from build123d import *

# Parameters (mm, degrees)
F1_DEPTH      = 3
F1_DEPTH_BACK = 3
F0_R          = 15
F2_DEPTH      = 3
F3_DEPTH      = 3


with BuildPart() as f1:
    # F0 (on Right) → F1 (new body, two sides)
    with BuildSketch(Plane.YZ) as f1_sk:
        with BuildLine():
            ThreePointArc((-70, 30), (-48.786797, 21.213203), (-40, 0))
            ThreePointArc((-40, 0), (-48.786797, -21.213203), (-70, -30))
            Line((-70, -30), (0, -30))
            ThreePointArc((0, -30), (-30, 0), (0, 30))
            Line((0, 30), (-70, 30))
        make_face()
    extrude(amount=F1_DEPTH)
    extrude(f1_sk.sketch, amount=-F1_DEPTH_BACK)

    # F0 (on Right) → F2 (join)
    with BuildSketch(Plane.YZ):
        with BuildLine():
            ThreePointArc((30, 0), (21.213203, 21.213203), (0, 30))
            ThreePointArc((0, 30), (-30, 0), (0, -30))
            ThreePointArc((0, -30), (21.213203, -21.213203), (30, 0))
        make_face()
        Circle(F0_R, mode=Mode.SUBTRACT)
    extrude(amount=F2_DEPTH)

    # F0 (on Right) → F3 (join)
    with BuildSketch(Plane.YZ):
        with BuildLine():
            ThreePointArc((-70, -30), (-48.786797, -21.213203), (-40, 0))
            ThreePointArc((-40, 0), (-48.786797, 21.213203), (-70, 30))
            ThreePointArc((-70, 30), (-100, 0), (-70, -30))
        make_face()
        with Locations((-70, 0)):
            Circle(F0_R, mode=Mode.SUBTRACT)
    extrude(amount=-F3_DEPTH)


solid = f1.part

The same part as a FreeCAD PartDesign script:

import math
import FreeCAD as App
import Part
import Sketcher
from FreeCAD import Vector
Q = App.Units.Quantity

doc = App.newDocument("Part")
params = doc.addObject("Spreadsheet::Sheet", "Params")
for row, (alias, value) in enumerate([
    ("sketch1_radius", "30.000001 mm"),
    ("sketch1_width", "70 mm"),
    ("pad1_length", "3 mm"),
    ("pad1_length2", "3 mm"),
    ("sketch2_diameter", "30 mm"),
    ("sketch2_radius", "30.000001 mm"),
    ("pad2_length", "3 mm"),
    ("sketch3_diameter", "30 mm"),
    ("sketch3_radius", "30.000001 mm"),
    ("pad3_length", "3 mm"),
], start=1):
    params.set(f"A{row}", alias)
    params.set(f"B{row}", "=" + value)
    params.setAlias(f"B{row}", alias)

body = doc.addObject("PartDesign::Body", "Body")

# Sketch on YZ plane
sketch1 = body.newObject("Sketcher::SketchObject", "Sketch")
sketch1.AttachmentSupport = (doc.getObject("YZ_Plane"), [""])
sketch1.MapMode = "FlatFace"
sketch1.addGeometry(Part.ArcOfCircle(Part.Circle(Vector(-70, 0, 0), Vector(0, 0, 1), 30), math.radians(0), math.radians(90)), False)
sketch1.addGeometry(Part.ArcOfCircle(Part.Circle(Vector(-70, 0, 0), Vector(0, 0, 1), 30), math.radians(-90), math.radians(0)), False)
sketch1.addGeometry(Part.LineSegment(Vector(-70, -30, 0), Vector(0, -30, 0)), False)
sketch1.addGeometry(Part.ArcOfCircle(Part.Circle(Vector(0, 0, 0), Vector(0, 0, 1), 30), math.radians(90), math.radians(270)), False)
sketch1.addGeometry(Part.LineSegment(Vector(0, 30, 0), Vector(-70, 30, 0)), False)
sketch1.addConstraint(Sketcher.Constraint("Tangent", 0, 1, 1, 2))
sketch1.addConstraint(Sketcher.Constraint("Tangent", 1, 1, 2, 1))
sketch1.addConstraint(Sketcher.Constraint("Tangent", 2, 2, 3, 2))
sketch1.addConstraint(Sketcher.Constraint("Tangent", 3, 1, 4, 1))
sketch1.addConstraint(Sketcher.Constraint("Tangent", 4, 2, 0, 2))
sketch1.addConstraint(Sketcher.Constraint("Horizontal", 2))
sketch1.addConstraint(Sketcher.Constraint("Horizontal", 4))
sketch1.addConstraint(Sketcher.Constraint("Coincident", 3, 3, -1, 1))
sketch1.addConstraint(Sketcher.Constraint("Equal", 0, 1))
sketch1.addConstraint(Sketcher.Constraint("PointOnObject", 0, 1, -1))
sketch1.addConstraint(Sketcher.Constraint("Radius", 0, Q("30.000001 mm")))
sketch1.addConstraint(Sketcher.Constraint("DistanceX", 2, 1, 2, 2, Q("70 mm")))
sketch1.setExpression("Constraints[10]", "Params.sketch1_radius")
sketch1.setExpression("Constraints[11]", "Params.sketch1_width")
pad1 = body.newObject("PartDesign::Pad", "Pad")
pad1.Profile = sketch1
pad1.Type = "TwoLengths"
pad1.setExpression("Length", "Params.pad1_length")
pad1.setExpression("Length2", "Params.pad1_length2")

# Sketch on YZ plane
sketch2 = body.newObject("Sketcher::SketchObject", "Sketch001")
sketch2.AttachmentSupport = (doc.getObject("YZ_Plane"), [""])
sketch2.MapMode = "FlatFace"
sketch2.addGeometry(Part.ArcOfCircle(Part.Circle(Vector(0, 0, 0), Vector(0, 0, 1), 30), math.radians(0), math.radians(90)), False)
sketch2.addGeometry(Part.ArcOfCircle(Part.Circle(Vector(0, 0, 0), Vector(0, 0, 1), 30), math.radians(90), math.radians(270)), False)
sketch2.addGeometry(Part.ArcOfCircle(Part.Circle(Vector(0, 0, 0), Vector(0, 0, 1), 30), math.radians(-90), math.radians(0)), False)
sketch2.addGeometry(Part.Circle(Vector(0, 0, 0), Vector(0, 0, 1), 15), False)
sketch2.addConstraint(Sketcher.Constraint("Tangent", 0, 2, 1, 1))
sketch2.addConstraint(Sketcher.Constraint("Tangent", 1, 2, 2, 1))
sketch2.addConstraint(Sketcher.Constraint("Tangent", 2, 2, 0, 1))
sketch2.addConstraint(Sketcher.Constraint("Coincident", 0, 3, -1, 1))
sketch2.addConstraint(Sketcher.Constraint("Coincident", 3, 3, -1, 1))
sketch2.addConstraint(Sketcher.Constraint("PointOnObject", 0, 2, -2))
sketch2.addConstraint(Sketcher.Constraint("PointOnObject", 1, 2, -2))
sketch2.addConstraint(Sketcher.Constraint("PointOnObject", 2, 2, -1))
sketch2.addConstraint(Sketcher.Constraint("Diameter", 3, Q("30 mm")))
sketch2.addConstraint(Sketcher.Constraint("Radius", 0, Q("30.000001 mm")))
sketch2.setExpression("Constraints[8]", "Params.sketch2_diameter")
sketch2.setExpression("Constraints[9]", "Params.sketch2_radius")
pad2 = body.newObject("PartDesign::Pad", "Pad001")
pad2.Profile = sketch2
pad2.setExpression("Length", "Params.pad2_length")

# Sketch on YZ plane
sketch3 = body.newObject("Sketcher::SketchObject", "Sketch002")
sketch3.AttachmentSupport = (doc.getObject("YZ_Plane"), [""])
sketch3.MapMode = "FlatFace"
sketch3.addGeometry(Part.ArcOfCircle(Part.Circle(Vector(-70, 0, 0), Vector(0, 0, 1), 30), math.radians(-90), math.radians(0)), False)
sketch3.addGeometry(Part.ArcOfCircle(Part.Circle(Vector(-70, 0, 0), Vector(0, 0, 1), 30), math.radians(0), math.radians(90)), False)
sketch3.addGeometry(Part.ArcOfCircle(Part.Circle(Vector(-70, 0, 0), Vector(0, 0, 1), 30), math.radians(90), math.radians(270)), False)
sketch3.addGeometry(Part.Circle(Vector(-70, 0, 0), Vector(0, 0, 1), 15), False)
sketch3.addConstraint(Sketcher.Constraint("Tangent", 0, 2, 1, 1))
sketch3.addConstraint(Sketcher.Constraint("Tangent", 1, 2, 2, 1))
sketch3.addConstraint(Sketcher.Constraint("Tangent", 2, 2, 0, 1))
sketch3.addConstraint(Sketcher.Constraint("Coincident", 3, 3, 0, 3))
sketch3.addConstraint(Sketcher.Constraint("Symmetric", 1, 2, 2, 2, -1))
sketch3.addConstraint(Sketcher.Constraint("PointOnObject", 0, 2, -1))
sketch3.addConstraint(Sketcher.Constraint("Vertical", 3, 3, 1, 2))
sketch3.addConstraint(Sketcher.Constraint("Diameter", 3, Q("30 mm")))
sketch3.addConstraint(Sketcher.Constraint("Radius", 0, Q("30.000001 mm")))
sketch3.addConstraint(Sketcher.Constraint("DistanceX", 0, 3, -1, 1, Q("70.000001 mm")))
sketch3.setExpression("Constraints[7]", "Params.sketch3_diameter")
sketch3.setExpression("Constraints[8]", "Params.sketch3_radius")
pad3 = body.newObject("PartDesign::Pad", "Pad002")
pad3.Profile = sketch3
pad3.setExpression("Length", "Params.pad3_length")
pad3.Reversed = True

doc.recompute()
